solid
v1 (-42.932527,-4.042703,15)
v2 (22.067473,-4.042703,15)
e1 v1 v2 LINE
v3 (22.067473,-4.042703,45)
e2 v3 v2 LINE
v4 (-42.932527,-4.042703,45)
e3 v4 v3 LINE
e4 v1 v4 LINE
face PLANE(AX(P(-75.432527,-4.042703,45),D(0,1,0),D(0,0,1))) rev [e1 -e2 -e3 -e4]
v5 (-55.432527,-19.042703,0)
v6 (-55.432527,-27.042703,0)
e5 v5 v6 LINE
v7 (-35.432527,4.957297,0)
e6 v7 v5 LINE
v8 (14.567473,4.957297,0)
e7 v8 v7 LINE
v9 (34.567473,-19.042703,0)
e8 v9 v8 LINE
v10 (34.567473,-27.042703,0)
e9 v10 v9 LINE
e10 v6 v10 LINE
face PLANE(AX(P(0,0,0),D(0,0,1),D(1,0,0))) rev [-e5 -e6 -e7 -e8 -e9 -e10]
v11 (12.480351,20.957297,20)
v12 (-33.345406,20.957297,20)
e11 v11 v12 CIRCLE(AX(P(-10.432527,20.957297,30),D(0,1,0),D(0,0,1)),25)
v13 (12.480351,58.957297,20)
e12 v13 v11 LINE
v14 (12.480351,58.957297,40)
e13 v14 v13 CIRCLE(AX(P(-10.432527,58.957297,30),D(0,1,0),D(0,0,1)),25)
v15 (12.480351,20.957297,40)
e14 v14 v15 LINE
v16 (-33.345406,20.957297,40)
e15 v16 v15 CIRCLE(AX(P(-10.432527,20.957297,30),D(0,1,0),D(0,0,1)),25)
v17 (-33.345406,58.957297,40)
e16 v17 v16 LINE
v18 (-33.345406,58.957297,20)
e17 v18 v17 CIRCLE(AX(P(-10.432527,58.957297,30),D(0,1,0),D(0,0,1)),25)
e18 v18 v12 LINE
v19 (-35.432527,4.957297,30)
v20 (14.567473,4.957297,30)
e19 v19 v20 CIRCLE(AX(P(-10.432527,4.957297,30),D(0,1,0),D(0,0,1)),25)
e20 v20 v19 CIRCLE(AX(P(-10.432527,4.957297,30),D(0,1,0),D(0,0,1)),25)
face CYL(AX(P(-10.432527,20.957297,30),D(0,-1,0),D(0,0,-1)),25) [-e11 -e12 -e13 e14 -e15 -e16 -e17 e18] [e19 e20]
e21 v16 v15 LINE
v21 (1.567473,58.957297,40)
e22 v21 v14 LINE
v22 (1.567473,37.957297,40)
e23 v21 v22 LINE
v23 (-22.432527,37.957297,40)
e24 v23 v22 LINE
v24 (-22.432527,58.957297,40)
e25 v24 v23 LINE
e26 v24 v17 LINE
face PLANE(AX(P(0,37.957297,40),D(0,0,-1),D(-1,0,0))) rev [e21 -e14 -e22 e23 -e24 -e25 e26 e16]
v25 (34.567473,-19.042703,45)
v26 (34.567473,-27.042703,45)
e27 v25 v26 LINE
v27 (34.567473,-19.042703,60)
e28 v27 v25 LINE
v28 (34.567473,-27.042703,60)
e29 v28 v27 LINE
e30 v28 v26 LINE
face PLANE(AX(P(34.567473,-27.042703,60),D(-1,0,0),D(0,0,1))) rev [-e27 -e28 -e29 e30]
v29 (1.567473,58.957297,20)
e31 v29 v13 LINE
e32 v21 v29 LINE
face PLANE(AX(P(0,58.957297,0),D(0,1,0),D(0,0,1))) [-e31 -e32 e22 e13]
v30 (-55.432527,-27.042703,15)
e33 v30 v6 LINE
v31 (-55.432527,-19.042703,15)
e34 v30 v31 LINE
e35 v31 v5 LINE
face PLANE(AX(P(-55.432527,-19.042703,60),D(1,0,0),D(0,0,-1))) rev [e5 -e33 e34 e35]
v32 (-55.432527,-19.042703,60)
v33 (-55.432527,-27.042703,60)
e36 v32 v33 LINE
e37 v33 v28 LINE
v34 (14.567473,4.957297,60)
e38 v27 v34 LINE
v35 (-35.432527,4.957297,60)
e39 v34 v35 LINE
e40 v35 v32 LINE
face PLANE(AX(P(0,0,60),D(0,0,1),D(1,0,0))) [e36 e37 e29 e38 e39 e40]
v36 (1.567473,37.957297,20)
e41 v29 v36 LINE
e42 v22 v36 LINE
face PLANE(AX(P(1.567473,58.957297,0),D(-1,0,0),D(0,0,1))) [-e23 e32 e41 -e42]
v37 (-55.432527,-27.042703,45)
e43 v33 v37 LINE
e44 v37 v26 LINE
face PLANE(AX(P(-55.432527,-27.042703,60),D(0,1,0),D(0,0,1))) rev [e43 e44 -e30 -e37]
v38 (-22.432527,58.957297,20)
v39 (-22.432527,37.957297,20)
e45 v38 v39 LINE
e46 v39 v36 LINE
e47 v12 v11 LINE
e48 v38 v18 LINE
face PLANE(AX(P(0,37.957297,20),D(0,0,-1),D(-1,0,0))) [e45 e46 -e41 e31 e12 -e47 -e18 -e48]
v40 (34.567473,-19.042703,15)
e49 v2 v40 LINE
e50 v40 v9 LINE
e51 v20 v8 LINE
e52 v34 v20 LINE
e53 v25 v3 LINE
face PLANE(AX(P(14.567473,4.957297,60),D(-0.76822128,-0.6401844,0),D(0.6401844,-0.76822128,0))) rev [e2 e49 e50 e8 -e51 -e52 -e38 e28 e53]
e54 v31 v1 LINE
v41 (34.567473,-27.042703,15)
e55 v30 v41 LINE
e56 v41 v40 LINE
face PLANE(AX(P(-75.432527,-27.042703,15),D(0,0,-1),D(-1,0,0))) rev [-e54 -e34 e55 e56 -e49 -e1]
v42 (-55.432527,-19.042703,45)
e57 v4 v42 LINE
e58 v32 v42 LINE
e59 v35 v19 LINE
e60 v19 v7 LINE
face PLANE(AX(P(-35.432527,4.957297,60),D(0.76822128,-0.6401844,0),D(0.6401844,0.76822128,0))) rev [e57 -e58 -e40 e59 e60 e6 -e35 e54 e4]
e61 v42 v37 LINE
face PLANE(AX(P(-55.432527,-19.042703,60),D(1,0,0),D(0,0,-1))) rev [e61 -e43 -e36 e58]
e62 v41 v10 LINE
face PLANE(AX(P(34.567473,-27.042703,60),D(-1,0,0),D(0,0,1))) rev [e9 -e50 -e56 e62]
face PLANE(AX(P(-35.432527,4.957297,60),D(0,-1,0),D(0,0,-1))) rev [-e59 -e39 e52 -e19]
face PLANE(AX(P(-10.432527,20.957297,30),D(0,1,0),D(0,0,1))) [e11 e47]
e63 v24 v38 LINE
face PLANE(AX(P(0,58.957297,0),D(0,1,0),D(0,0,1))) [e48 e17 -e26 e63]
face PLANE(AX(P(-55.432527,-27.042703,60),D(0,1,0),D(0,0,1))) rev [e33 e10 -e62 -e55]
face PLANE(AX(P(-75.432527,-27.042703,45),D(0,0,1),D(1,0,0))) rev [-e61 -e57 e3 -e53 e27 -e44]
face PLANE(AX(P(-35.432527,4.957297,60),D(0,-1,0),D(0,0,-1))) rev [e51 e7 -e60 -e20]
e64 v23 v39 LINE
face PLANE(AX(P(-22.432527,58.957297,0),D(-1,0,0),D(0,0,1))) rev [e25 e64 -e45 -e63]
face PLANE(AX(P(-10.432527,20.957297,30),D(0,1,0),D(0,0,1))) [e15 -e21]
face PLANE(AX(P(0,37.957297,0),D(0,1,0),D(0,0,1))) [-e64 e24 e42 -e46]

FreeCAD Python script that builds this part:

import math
import FreeCAD as App
import Part
import Sketcher

V = App.Vector

doc = App.newDocument("Part")
body = doc.addObject("PartDesign::Body", "Body")

sketch1 = body.newObject("Sketcher::SketchObject", "Sketch")
sketch1.AttachmentSupport = (doc.getObject("XY_Plane"), [""])
sketch1.MapMode = "FlatFace"
sketch1.addGeometry([
    Part.LineSegment(V(-55.432527, -19.042703, 0), V(-55.432527, -27.042703, 0)),
    Part.LineSegment(V(-55.432527, -27.042703, 0), V(34.567473, -27.042703, 0)),
    Part.LineSegment(V(34.567473, -27.042703, 0), V(34.567473, -19.042703, 0)),
    Part.LineSegment(V(34.567473, -19.042703, 0), V(14.567473, 4.957297, 0)),
    Part.LineSegment(V(14.567473, 4.957297, 0), V(-35.432527, 4.957297, 0)),
    Part.LineSegment(V(-35.432527, 4.957297, 0), V(-55.432527, -19.042703, 0)),
], False)
sketch1.addConstraint([
    Sketcher.Constraint("Coincident", 0, 2, 1, 1),
    Sketcher.Constraint("Coincident", 1, 2, 2, 1),
    Sketcher.Constraint("Coincident", 2, 2, 3, 1),
    Sketcher.Constraint("Coincident", 3, 2, 4, 1),
    Sketcher.Constraint("Coincident", 4, 2, 5, 1),
    Sketcher.Constraint("Coincident", 5, 2, 0, 1),
    Sketcher.Constraint("Vertical", 0),
    Sketcher.Constraint("Horizontal", 1),
    Sketcher.Constraint("Vertical", 2),
    Sketcher.Constraint("Horizontal", 4),
    Sketcher.Constraint("Horizontal", 2, 2, 5, 2),
    Sketcher.Constraint("Equal", 3, 5),
    Sketcher.Constraint("DistanceX", 1, 1, 1, 2, 90.0),
    Sketcher.Constraint("DistanceX", 4, 2, 4, 1, 50.0),
    Sketcher.Constraint("DistanceY", 0, 2, 0, 1, 8.0),
    Sketcher.Constraint("DistanceY", 2, 2, 3, 2, 24.0),
    Sketcher.Constraint("DistanceX", 0, 2, -1, 1, 55.432527),
    Sketcher.Constraint("DistanceY", 0, 2, -1, 1, 27.042703),
])
pad1 = body.newObject("PartDesign::Pad", "Pad")
pad1.Profile = sketch1
pad1.Length = 60

sketch2 = body.newObject("Sketcher::SketchObject", "Sketch001")
sketch2.AttachmentSupport = (doc.getObject("XZ_Plane"), [""])
sketch2.MapMode = "FlatFace"
sketch2.AttachmentOffset = App.Placement(V(0, 0, -4.957297), App.Rotation())
sketch2.addGeometry(Part.Circle(V(-10.432527, 30, 0), V(0, 0, 1), 25), False)
sketch2.addConstraint([
    Sketcher.Constraint("Diameter", 0, 50.0),
    Sketcher.Constraint("DistanceY", -1, 1, 0, 3, 30.0),
    Sketcher.Constraint("DistanceX", 0, 3, -1, 1, 10.432527),
])
pad2 = body.newObject("PartDesign::Pad", "Pad001")
pad2.Profile = sketch2
pad2.Length = 16
pad2.Reversed = True

sketch3 = body.newObject("Sketcher::SketchObject", "Sketch002")
sketch3.AttachmentSupport = (doc.getObject("XZ_Plane"), [""])
sketch3.MapMode = "FlatFace"
sketch3.AttachmentOffset = App.Placement(V(0, 0, -20.957297), App.Rotation())
sketch3.addGeometry([
    Part.LineSegment(V(1.567473, 20, 0), V(-22.432527, 20, 0)),
    Part.LineSegment(V(-22.432527, 20, 0), V(-22.432527, 40, 0)),
    Part.LineSegment(V(-22.432527, 40, 0), V(1.567473, 40, 0)),
    Part.LineSegment(V(1.567473, 40, 0), V(1.567473, 20, 0)),
], False)
sketch3.addConstraint([
    Sketcher.Constraint("Coincident", 0, 2, 1, 1),
    Sketcher.Constraint("Coincident", 1, 2, 2, 1),
    Sketcher.Constraint("Coincident", 2, 2, 3, 1),
    Sketcher.Constraint("Coincident", 3, 2, 0, 1),
    Sketcher.Constraint("Horizontal", 0),
    Sketcher.Constraint("Vertical", 1),
    Sketcher.Constraint("Horizontal", 2),
    Sketcher.Constraint("Vertical", 3),
    Sketcher.Constraint("DistanceX", 0, 2, 0, 1, 24.0),
    Sketcher.Constraint("DistanceY", 1, 1, 1, 2, 20.0),
    Sketcher.Constraint("DistanceY", -1, 1, 0, 2, 20.0),
    Sketcher.Constraint("DistanceX", 0, 2, -1, 1, 22.432527),
])
pad3 = body.newObject("PartDesign::Pad", "Pad002")
pad3.Profile = sketch3
pad3.Length = 17
pad3.Reversed = True

sketch4 = body.newObject("Sketcher::SketchObject", "Sketch003")
sketch4.AttachmentSupport = (doc.getObject("XZ_Plane"), [""])
sketch4.MapMode = "FlatFace"
sketch4.AttachmentOffset = App.Placement(V(0, 0, -20.957297), App.Rotation())
sketch4.addGeometry([
    Part.LineSegment(V(-22.432527, 40, 0), V(-22.432527, 20, 0)),
    Part.LineSegment(V(-22.432527, 20, 0), V(-33.345406, 20, 0)),
    Part.ArcOfCircle(Part.Circle(V(-10.432527, 30, 0), V(0, 0, 1), 25), math.radians(156.421822), math.radians(203.578178)),
    Part.LineSegment(V(-33.345406, 40, 0), V(-22.432527, 40, 0)),
    Part.LineSegment(V(12.480351, 20, 0), V(1.567473, 20, 0)),
    Part.LineSegment(V(1.567473, 20, 0), V(1.567473, 40, 0)),
    Part.LineSegment(V(1.567473, 40, 0), V(12.480351, 40, 0)),
    Part.ArcOfCircle(Part.Circle(V(-10.432527, 30, 0), V(0, 0, 1), 25), math.radians(0), math.radians(23.578178)),
    Part.ArcOfCircle(Part.Circle(V(-10.432527, 30, 0), V(0, 0, 1), 25), math.radians(-23.578178), math.radians(0)),
], False)
sketch4.addConstraint([
    Sketcher.Constraint("Coincident", 0, 2, 1, 1),
    Sketcher.Constraint("Coincident", 1, 2, 2, 2),
    Sketcher.Constraint("Coincident", 2, 1, 3, 1),
    Sketcher.Constraint("Coincident", 3, 2, 0, 1),
    Sketcher.Constraint("Coincident", 4, 2, 5, 1),
    Sketcher.Constraint("Coincident", 5, 2, 6, 1),
    Sketcher.Constraint("Coincident", 6, 2, 7, 2),
    Sketcher.Constraint("Tangent", 7, 1, 8, 2),
    Sketcher.Constraint("Coincident", 8, 1, 4, 1),
    Sketcher.Constraint("Vertical", 0),
    Sketcher.Constraint("Horizontal", 1),
    Sketcher.Constraint("Horizontal", 3),
    Sketcher.Constraint("Horizontal", 4),
    Sketcher.Constraint("Vertical", 5),
    Sketcher.Constraint("Horizontal", 6),
    Sketcher.Constraint("Coincident", 7, 3, 2, 3),
    Sketcher.Constraint("Equal", 2, 7),
    Sketcher.Constraint("Equal", 7, 8),
    Sketcher.Constraint("Horizontal", 1, 2, 4, 2),
    Sketcher.Constraint("Horizontal", 3, 2, 5, 2),
    Sketcher.Constraint("Horizontal", 8, 3, 7, 1),
    Sketcher.Constraint("Vertical", 1, 2, 2, 1),
    Sketcher.Constraint("Equal", 3, 4),
    Sketcher.Constraint("Radius", 2, 25.0),
    Sketcher.Constraint("DistanceY", 0, 2, 0, 1, 20.0),
    Sketcher.Constraint("DistanceY", -1, 1, 2, 3, 30.0),
    Sketcher.Constraint("DistanceX", 0, 2, 2, 3, 12.0),
    Sketcher.Constraint("DistanceX", -1, 1, 6, 2, 12.480351),
])
pad4 = body.newObject("PartDesign::Pad", "Pad003")
pad4.Profile = sketch4
pad4.Length = 38
pad4.Reversed = True

sketch5 = body.newObject("Sketcher::SketchObject", "Sketch004")
sketch5.AttachmentSupport = (doc.getObject("YZ_Plane"), [""])
sketch5.MapMode = "FlatFace"
sketch5.AttachmentOffset = App.Placement(V(0, 0, 34.567473), App.Rotation())
sketch5.addGeometry([
    Part.LineSegment(V(-4.042703, 45, 0), V(-27.042703, 45, 0)),
    Part.LineSegment(V(-27.042703, 45, 0), V(-27.042703, 15, 0)),
    Part.LineSegment(V(-27.042703, 15, 0), V(-4.042703, 15, 0)),
    Part.LineSegment(V(-4.042703, 15, 0), V(-4.042703, 45, 0)),
], False)
sketch5.addConstraint([
    Sketcher.Constraint("Coincident", 0, 2, 1, 1),
    Sketcher.Constraint("Coincident", 1, 2, 2, 1),
    Sketcher.Constraint("Coincident", 2, 2, 3, 1),
    Sketcher.Constraint("Coincident", 3, 2, 0, 1),
    Sketcher.Constraint("Horizontal", 0),
    Sketcher.Constraint("Vertical", 1),
    Sketcher.Constraint("Horizontal", 2),
    Sketcher.Constraint("Vertical", 3),
    Sketcher.Constraint("DistanceX", 0, 2, 0, 1, 23.0),
    Sketcher.Constraint("DistanceY", 1, 2, 1, 1, 30.0),
    Sketcher.Constraint("DistanceY", -1, 1, 0, 2, 45.0),
    Sketcher.Constraint("DistanceX", 0, 2, -1, 1, 27.042703),
])
pocket1 = body.newObject("PartDesign::Pocket", "Pocket")
pocket1.Profile = sketch5
pocket1.Length = 110

doc.recompute()
